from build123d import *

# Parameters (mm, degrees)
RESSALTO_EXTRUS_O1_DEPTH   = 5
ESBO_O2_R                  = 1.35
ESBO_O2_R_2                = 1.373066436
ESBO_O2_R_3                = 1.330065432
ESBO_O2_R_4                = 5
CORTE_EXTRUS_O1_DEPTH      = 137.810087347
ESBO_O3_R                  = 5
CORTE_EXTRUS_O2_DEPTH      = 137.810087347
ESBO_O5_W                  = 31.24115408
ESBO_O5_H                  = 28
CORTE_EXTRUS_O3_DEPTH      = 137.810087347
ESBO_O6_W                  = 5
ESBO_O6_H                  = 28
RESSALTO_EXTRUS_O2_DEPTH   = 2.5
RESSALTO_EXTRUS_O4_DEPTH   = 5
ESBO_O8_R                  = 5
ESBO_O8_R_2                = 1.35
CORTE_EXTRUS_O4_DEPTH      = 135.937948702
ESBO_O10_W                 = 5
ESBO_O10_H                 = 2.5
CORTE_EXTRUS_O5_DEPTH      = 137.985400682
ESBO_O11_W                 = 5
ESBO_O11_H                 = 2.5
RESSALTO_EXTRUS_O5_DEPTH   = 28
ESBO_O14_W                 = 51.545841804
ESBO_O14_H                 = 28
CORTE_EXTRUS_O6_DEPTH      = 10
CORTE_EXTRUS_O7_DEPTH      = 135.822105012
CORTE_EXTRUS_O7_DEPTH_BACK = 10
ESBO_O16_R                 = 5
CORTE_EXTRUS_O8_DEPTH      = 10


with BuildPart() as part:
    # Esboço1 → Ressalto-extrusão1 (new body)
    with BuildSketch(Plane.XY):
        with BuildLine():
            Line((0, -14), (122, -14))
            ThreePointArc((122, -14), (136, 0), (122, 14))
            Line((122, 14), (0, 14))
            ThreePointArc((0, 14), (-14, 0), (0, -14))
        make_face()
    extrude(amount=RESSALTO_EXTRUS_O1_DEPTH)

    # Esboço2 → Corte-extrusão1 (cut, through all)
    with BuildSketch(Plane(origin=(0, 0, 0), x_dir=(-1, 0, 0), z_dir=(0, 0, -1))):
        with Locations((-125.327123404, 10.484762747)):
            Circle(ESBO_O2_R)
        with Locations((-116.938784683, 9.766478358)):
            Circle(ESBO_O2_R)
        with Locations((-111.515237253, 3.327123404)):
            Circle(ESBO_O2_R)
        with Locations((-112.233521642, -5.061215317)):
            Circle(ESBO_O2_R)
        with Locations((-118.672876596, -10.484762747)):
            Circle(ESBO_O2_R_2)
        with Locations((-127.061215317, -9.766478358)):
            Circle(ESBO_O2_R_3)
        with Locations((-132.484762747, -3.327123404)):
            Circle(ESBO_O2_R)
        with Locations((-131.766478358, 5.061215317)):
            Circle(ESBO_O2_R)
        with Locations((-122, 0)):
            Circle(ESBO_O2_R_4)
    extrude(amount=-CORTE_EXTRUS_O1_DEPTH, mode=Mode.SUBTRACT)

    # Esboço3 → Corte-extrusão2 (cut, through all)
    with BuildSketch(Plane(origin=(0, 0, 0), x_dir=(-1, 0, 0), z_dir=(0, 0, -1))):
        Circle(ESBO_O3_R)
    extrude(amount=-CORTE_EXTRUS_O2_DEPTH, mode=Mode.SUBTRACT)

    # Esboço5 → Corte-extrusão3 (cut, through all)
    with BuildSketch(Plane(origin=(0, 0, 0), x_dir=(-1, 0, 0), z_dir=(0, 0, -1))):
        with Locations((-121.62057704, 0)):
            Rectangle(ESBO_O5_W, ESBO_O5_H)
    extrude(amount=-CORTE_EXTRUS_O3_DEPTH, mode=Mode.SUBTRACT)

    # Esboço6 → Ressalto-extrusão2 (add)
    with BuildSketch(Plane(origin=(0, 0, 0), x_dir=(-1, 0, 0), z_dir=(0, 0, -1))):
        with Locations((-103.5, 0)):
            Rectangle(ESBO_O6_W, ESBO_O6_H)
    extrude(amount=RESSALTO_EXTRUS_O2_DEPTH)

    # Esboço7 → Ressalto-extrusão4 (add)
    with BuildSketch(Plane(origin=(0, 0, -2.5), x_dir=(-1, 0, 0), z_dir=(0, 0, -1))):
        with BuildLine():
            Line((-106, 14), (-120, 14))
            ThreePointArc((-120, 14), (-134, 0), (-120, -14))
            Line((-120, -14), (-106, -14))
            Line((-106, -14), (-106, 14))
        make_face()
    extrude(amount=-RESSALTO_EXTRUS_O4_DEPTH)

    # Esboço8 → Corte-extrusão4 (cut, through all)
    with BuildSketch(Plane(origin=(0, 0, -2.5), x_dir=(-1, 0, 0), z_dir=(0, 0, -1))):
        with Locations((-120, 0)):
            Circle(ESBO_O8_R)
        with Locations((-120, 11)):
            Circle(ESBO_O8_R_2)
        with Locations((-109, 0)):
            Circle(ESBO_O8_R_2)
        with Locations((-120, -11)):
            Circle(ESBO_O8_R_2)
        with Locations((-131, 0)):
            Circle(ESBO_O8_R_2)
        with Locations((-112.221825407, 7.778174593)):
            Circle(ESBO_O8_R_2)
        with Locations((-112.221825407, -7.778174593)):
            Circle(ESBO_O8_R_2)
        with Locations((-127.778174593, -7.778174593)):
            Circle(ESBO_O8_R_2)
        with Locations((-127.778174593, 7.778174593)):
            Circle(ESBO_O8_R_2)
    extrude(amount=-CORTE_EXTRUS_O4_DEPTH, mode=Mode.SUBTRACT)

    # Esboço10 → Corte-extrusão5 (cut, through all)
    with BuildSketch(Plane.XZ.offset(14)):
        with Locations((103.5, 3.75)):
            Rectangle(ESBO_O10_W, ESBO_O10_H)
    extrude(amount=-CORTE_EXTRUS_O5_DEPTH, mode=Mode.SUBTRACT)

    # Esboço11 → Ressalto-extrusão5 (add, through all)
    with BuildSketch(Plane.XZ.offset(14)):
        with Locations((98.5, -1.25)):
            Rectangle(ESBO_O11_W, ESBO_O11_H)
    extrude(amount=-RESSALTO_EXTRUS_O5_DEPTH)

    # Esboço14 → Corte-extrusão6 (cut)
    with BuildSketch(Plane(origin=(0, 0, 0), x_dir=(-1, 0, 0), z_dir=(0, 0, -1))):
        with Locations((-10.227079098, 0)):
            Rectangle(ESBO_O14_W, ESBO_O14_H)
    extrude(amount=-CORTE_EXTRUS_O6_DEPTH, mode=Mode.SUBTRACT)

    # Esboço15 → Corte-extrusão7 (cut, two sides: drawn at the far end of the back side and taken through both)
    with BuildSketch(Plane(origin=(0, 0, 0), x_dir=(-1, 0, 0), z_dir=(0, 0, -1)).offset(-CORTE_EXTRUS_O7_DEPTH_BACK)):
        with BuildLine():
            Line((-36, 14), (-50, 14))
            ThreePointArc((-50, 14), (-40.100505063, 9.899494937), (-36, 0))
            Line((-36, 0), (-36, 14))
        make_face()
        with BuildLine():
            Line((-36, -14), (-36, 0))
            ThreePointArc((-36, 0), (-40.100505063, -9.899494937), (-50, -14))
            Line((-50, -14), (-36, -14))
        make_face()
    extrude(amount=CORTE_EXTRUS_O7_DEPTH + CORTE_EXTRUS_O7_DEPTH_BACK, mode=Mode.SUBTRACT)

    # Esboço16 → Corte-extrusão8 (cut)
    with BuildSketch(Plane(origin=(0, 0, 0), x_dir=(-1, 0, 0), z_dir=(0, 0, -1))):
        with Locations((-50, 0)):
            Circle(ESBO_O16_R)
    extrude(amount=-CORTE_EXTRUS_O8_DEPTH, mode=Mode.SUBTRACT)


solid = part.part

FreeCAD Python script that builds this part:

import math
import FreeCAD as App
import Part
import Sketcher
Q = App.Units.Quantity

doc = App.newDocument("Part")
body = doc.addObject("PartDesign::Body", "Body")

# Sketch on XY plane
sketch1 = body.newObject("Sketcher::SketchObject", "Sketch")
sketch1.AttachmentSupport = (doc.getObject("XY_Plane"), [""])
sketch1.MapMode = "FlatFace"
sketch1.addGeometry([
    Part.LineSegment(App.Vector(0, -14, 0), App.Vector(122, -14, 0)),
    Part.ArcOfCircle(Part.Circle(App.Vector(122, 0, 0), App.Vector(0, 0, 1), 14), math.radians(-90), math.radians(90)),
    Part.LineSegment(App.Vector(122, 14, 0), App.Vector(0, 14, 0)),
    Part.ArcOfCircle(Part.Circle(App.Vector(0, 0, 0), App.Vector(0, 0, 1), 14), math.radians(90), math.radians(270)),
], False)
sketch1.addConstraint([
    Sketcher.Constraint("Tangent", 0, 2, 1, 1),
    Sketcher.Constraint("Tangent", 1, 2, 2, 1),
    Sketcher.Constraint("Tangent", 2, 2, 3, 1),
    Sketcher.Constraint("Tangent", 3, 2, 0, 1),
    Sketcher.Constraint("Horizontal", 0),
    Sketcher.Constraint("Horizontal", 2),
    Sketcher.Constraint("Coincident", 3, 3, -1, 1),
    Sketcher.Constraint("Radius", 1, Q("14 mm")),
    Sketcher.Constraint("DistanceX", 0, 1, 0, 2, Q("122 mm")),
])
pad1 = body.newObject("PartDesign::Pad", "Pad")
pad1.Profile = sketch1
pad1.Length = 5

# Sketch on XY plane
sketch2 = body.newObject("Sketcher::SketchObject", "Sketch001")
sketch2.AttachmentSupport = (doc.getObject("XY_Plane"), [""])
sketch2.MapMode = "FlatFace"
sketch2.addGeometry([
    Part.Circle(App.Vector(125.3, 10.5, 0), App.Vector(0, 0, 1), 1.4),  # 0
    Part.Circle(App.Vector(116.9, 9.8, 0), App.Vector(0, 0, 1), 1.4),  # 1
    Part.Circle(App.Vector(111.5, 3.3, 0), App.Vector(0, 0, 1), 1.4),  # 2
    Part.Circle(App.Vector(112.2, -5.1, 0), App.Vector(0, 0, 1), 1.4),  # 3
    Part.Circle(App.Vector(118.7, -10.5, 0), App.Vector(0, 0, 1), 1.4),  # 4
    Part.Circle(App.Vector(127.1, -9.8, 0), App.Vector(0, 0, 1), 1.3),  # 5
    Part.Circle(App.Vector(132.5, -3.3, 0), App.Vector(0, 0, 1), 1.4),  # 6
    Part.Circle(App.Vector(131.8, 5.1, 0), App.Vector(0, 0, 1), 1.4),  # 7
    Part.Circle(App.Vector(122, 0, 0), App.Vector(0, 0, 1), 5),  # 8
], False)
sketch2.addConstraint([
    Sketcher.Constraint("Equal", 0, 1),
    Sketcher.Constraint("Equal", 1, 2),
    Sketcher.Constraint("Equal", 2, 3),
    Sketcher.Constraint("Equal", 3, 6),
    Sketcher.Constraint("Equal", 6, 7),
    Sketcher.Constraint("PointOnObject", 8, 3, -1),
    Sketcher.Constraint("Diameter", 8, Q("10 mm")),
    Sketcher.Constraint("Diameter", 0, Q("2.7 mm")),
    Sketcher.Constraint("DistanceX", -1, 1, 8, 3, Q("122 mm")),
    Sketcher.Constraint("Diameter", 5, Q("2.660131 mm")),
    Sketcher.Constraint("Diameter", 4, Q("2.746133 mm")),
    Sketcher.Constraint("DistanceX", 3, 3, 0, 3, Q("13.093602 mm")),
    Sketcher.Constraint("DistanceY", 5, 3, 2, 3, Q("13.093602 mm")),
    Sketcher.Constraint("DistanceY", 6, 3, 1, 3, Q("13.093602 mm")),
    Sketcher.Constraint("DistanceY", -1, 1, 1, 3, Q("9.766478 mm")),
    Sketcher.Constraint("DistanceX", -1, 1, 3, 3, Q("112.233522 mm")),
    Sketcher.Constraint("DistanceY", 5, 3, -1, 1, Q("9.766478 mm")),
    Sketcher.Constraint("DistanceX", -1, 1, 7, 3, Q("131.766478 mm")),
    Sketcher.Constraint("DistanceX", 1, 3, 0, 3, Q("8.388339 mm")),
    Sketcher.Constraint("DistanceY", 2, 3, 0, 3, Q("7.157639 mm")),
    Sketcher.Constraint("DistanceY", 3, 3, 2, 3, Q("8.388339 mm")),
    Sketcher.Constraint("DistanceX", 2, 3, 4, 3, Q("7.157639 mm")),
    Sketcher.Constraint("DistanceX", 1, 3, 4, 3, Q("1.734092 mm")),
    Sketcher.Constraint("DistanceY", 4, 3, 1, 3, Q("20.251241 mm")),
    Sketcher.Constraint("DistanceX", 4, 3, 5, 3, Q("8.388339 mm")),
    Sketcher.Constraint("DistanceX", 0, 3, 6, 3, Q("7.157639 mm")),
    Sketcher.Constraint("DistanceY", 6, 3, 7, 3, Q("8.388339 mm")),
])
pocket1 = body.newObject("PartDesign::Pocket", "Pocket")
pocket1.Profile = sketch2
pocket1.Type = "ThroughAll"
pocket1.Reversed = True

# Sketch on XY plane
sketch3 = body.newObject("Sketcher::SketchObject", "Sketch002")
sketch3.AttachmentSupport = (doc.getObject("XY_Plane"), [""])
sketch3.MapMode = "FlatFace"
sketch3.addGeometry(Part.Circle(App.Vector(0, 0, 0), App.Vector(0, 0, 1), 5), False)
sketch3.addConstraint([
    Sketcher.Constraint("Coincident", 0, 3, -1, 1),
    Sketcher.Constraint("Diameter", 0, Q("10 mm")),
])
pocket2 = body.newObject("PartDesign::Pocket", "Pocket001")
pocket2.Profile = sketch3
pocket2.Type = "ThroughAll"
pocket2.Reversed = True

# Sketch on XY plane
sketch4 = body.newObject("Sketcher::SketchObject", "Sketch003")
sketch4.AttachmentSupport = (doc.getObject("XY_Plane"), [""])
sketch4.MapMode = "FlatFace"
sketch4.addGeometry([
    Part.LineSegment(App.Vector(137, 14, 0), App.Vector(137, -14, 0)),
    Part.LineSegment(App.Vector(137, -14, 0), App.Vector(106, -14, 0)),
    Part.LineSegment(App.Vector(106, -14, 0), App.Vector(106, 14, 0)),
    Part.LineSegment(App.Vector(106, 14, 0), App.Vector(137, 14, 0)),
], False)
sketch4.addConstraint([
    Sketcher.Constraint("Coincident", 0, 2, 1, 1),
    Sketcher.Constraint("Coincident", 1, 2, 2, 1),
    Sketcher.Constraint("Coincident", 2, 2, 3, 1),
    Sketcher.Constraint("Coincident", 3, 2, 0, 1),
    Sketcher.Constraint("Vertical", 0),
    Sketcher.Constraint("Horizontal", 1),
    Sketcher.Constraint("Vertical", 2),
    Sketcher.Constraint("Horizontal", 3),
    Sketcher.Constraint("DistanceY", 0, 2, 0, 1, Q("28 mm")),
    Sketcher.Constraint("DistanceY", 0, 2, -1, 1, Q("14 mm")),
    Sketcher.Constraint("DistanceX", -1, 1, 1, 2, Q("106 mm")),
    Sketcher.Constraint("DistanceX", 1, 2, 1, 1, Q("31.241154 mm")),
])
pocket3 = body.newObject("PartDesign::Pocket", "Pocket002")
pocket3.Profile = sketch4
pocket3.Type = "ThroughAll"
pocket3.Reversed = True

# Sketch on XY plane
sketch5 = body.newObject("Sketcher::SketchObject", "Sketch004")
sketch5.AttachmentSupport = (doc.getObject("XY_Plane"), [""])
sketch5.MapMode = "FlatFace"
sketch5.addGeometry([
    Part.LineSegment(App.Vector(106, 14, 0), App.Vector(106, -14, 0)),
    Part.LineSegment(App.Vector(106, -14, 0), App.Vector(101, -14, 0)),
    Part.LineSegment(App.Vector(101, -14, 0), App.Vector(101, 14, 0)),
    Part.LineSegment(App.Vector(101, 14, 0), App.Vector(106, 14, 0)),
], False)
sketch5.addConstraint([
    Sketcher.Constraint("Coincident", 0, 2, 1, 1),
    Sketcher.Constraint("Coincident", 1, 2, 2, 1),
    Sketcher.Constraint("Coincident", 2, 2, 3, 1),
    Sketcher.Constraint("Coincident", 3, 2, 0, 1),
    Sketcher.Constraint("Vertical", 0),
    Sketcher.Constraint("Horizontal", 1),
    Sketcher.Constraint("Vertical", 2),
    Sketcher.Constraint("Horizontal", 3),
    Sketcher.Constraint("DistanceX", 1, 2, 1, 1, Q("5 mm")),
    Sketcher.Constraint("DistanceY", 0, 2, 0, 1, Q("28 mm")),
    Sketcher.Constraint("DistanceX", -1, 1, 0, 2, Q("106 mm")),
    Sketcher.Constraint("DistanceY", 0, 2, -1, 1, Q("14 mm")),
])
pad2 = body.newObject("PartDesign::Pad", "Pad001")
pad2.Profile = sketch5
pad2.Length = 2.5
pad2.Reversed = True

# Sketch on XY plane
sketch6 = body.newObject("Sketcher::SketchObject", "Sketch005")
sketch6.AttachmentSupport = (doc.getObject("XY_Plane"), [""])
sketch6.MapMode = "FlatFace"
sketch6.AttachmentOffset = App.Placement(App.Vector(0, 0, -2.5), App.Rotation())
sketch6.addGeometry([
    Part.LineSegment(App.Vector(106, 14, 0), App.Vector(120, 14, 0)),
    Part.ArcOfCircle(Part.Circle(App.Vector(120, 0, 0), App.Vector(0, 0, 1), 14), math.radians(-90), math.radians(90)),
    Part.LineSegment(App.Vector(120, -14, 0), App.Vector(106, -14, 0)),
    Part.LineSegment(App.Vector(106, -14, 0), App.Vector(106, 14, 0)),
], False)
sketch6.addConstraint([
    Sketcher.Constraint("Tangent", 0, 2, 1, 2),
    Sketcher.Constraint("Tangent", 1, 1, 2, 1),
    Sketcher.Constraint("Coincident", 2, 2, 3, 1),
    Sketcher.Constraint("Coincident", 3, 2, 0, 1),
    Sketcher.Constraint("Horizontal", 0),
    Sketcher.Constraint("Horizontal", 2),
    Sketcher.Constraint("Vertical", 3),
    Sketcher.Constraint("PointOnObject", 1, 3, -1),
    Sketcher.Constraint("Radius", 1, Q("14 mm")),
    Sketcher.Constraint("DistanceX", 0, 1, 0, 2, Q("14 mm")),
    Sketcher.Constraint("DistanceX", -1, 1, 1, 3, Q("120 mm")),
])
pad3 = body.newObject("PartDesign::Pad", "Pad002")
pad3.Profile = sketch6
pad3.Length = 5

# Sketch on XY plane
sketch7 = body.newObject("Sketcher::SketchObject", "Sketch006")
sketch7.AttachmentSupport = (doc.getObject("XY_Plane"), [""])
sketch7.MapMode = "FlatFace"
sketch7.AttachmentOffset = App.Placement(App.Vector(0, 0, -2.5), App.Rotation())
sketch7.addGeometry([
    Part.Circle(App.Vector(120, 0, 0), App.Vector(0, 0, 1), 5),  # 0
    Part.Circle(App.Vector(120, 11, 0), App.Vector(0, 0, 1), 1.4),  # 1
    Part.Circle(App.Vector(109, 0, 0), App.Vector(0, 0, 1), 1.4),  # 2
    Part.Circle(App.Vector(120, -11, 0), App.Vector(0, 0, 1), 1.4),  # 3
    Part.Circle(App.Vector(131, 0, 0), App.Vector(0, 0, 1), 1.4),  # 4
    Part.Circle(App.Vector(112.2, 7.8, 0), App.Vector(0, 0, 1), 1.4),  # 5
    Part.Circle(App.Vector(112.2, -7.8, 0), App.Vector(0, 0, 1), 1.4),  # 6
    Part.Circle(App.Vector(127.8, -7.8, 0), App.Vector(0, 0, 1), 1.4),  # 7
    Part.Circle(App.Vector(127.8, 7.8, 0), App.Vector(0, 0, 1), 1.4),  # 8
], False)
sketch7.addConstraint([
    Sketcher.Constraint("Equal", 1, 2),
    Sketcher.Constraint("Equal", 2, 3),
    Sketcher.Constraint("Equal", 3, 4),
    Sketcher.Constraint("Equal", 4, 5),
    Sketcher.Constraint("Equal", 5, 6),
    Sketcher.Constraint("Equal", 6, 7),
    Sketcher.Constraint("Equal", 7, 8),
    Sketcher.Constraint("Symmetric", 1, 3, 3, 3, -1),
    Sketcher.Constraint("Symmetric", 5, 3, 6, 3, -1),
    Sketcher.Constraint("Symmetric", 7, 3, 8, 3, -1),
    Sketcher.Constraint("PointOnObject", 0, 3, -1),
    Sketcher.Constraint("PointOnObject", 2, 3, -1),
    Sketcher.Constraint("PointOnObject", 4, 3, -1),
    Sketcher.Constraint("Horizontal", 6, 3, 7, 3),
    Sketcher.Constraint("Vertical", 0, 3, 1, 3),
    Sketcher.Constraint("Diameter", 0, Q("10 mm")),
    Sketcher.Constraint("Diameter", 1, Q("2.7 mm")),
    Sketcher.Constraint("DistanceX", -1, 1, 0, 3, Q("120 mm")),
    Sketcher.Constraint("DistanceY", -1, 1, 1, 3, Q("11 mm")),
    Sketcher.Constraint("DistanceX", -1, 1, 2, 3, Q("109 mm")),
    Sketcher.Constraint("DistanceX", -1, 1, 4, 3, Q("131 mm")),
    Sketcher.Constraint("DistanceY", 6, 3, 5, 3, Q("15.556349 mm")),
    Sketcher.Constraint("DistanceX", 6, 3, 7, 3, Q("15.556349 mm")),
    Sketcher.Constraint("DistanceX", -1, 1, 5, 3, Q("112.221825 mm")),
])
pocket4 = body.newObject("PartDesign::Pocket", "Pocket003")
pocket4.Profile = sketch7
pocket4.Type = "ThroughAll"
pocket4.Reversed = True

# Sketch on XZ plane
sketch8 = body.newObject("Sketcher::SketchObject", "Sketch007")
sketch8.AttachmentSupport = (doc.getObject("XZ_Plane"), [""])
sketch8.MapMode = "FlatFace"
sketch8.AttachmentOffset = App.Placement(App.Vector(0, 0, 14), App.Rotation())
sketch8.addGeometry([
    Part.LineSegment(App.Vector(101, 5, 0), App.Vector(101, 2.5, 0)),
    Part.LineSegment(App.Vector(101, 2.5, 0), App.Vector(106, 2.5, 0)),
    Part.LineSegment(App.Vector(106, 2.5, 0), App.Vector(106, 5, 0)),
    Part.LineSegment(App.Vector(106, 5, 0), App.Vector(101, 5, 0)),
], False)
sketch8.addConstraint([
    Sketcher.Constraint("Coincident", 0, 2, 1, 1),
    Sketcher.Constraint("Coincident", 1, 2, 2, 1),
    Sketcher.Constraint("Coincident", 2, 2, 3, 1),
    Sketcher.Constraint("Coincident", 3, 2, 0, 1),
    Sketcher.Constraint("Vertical", 0),
    Sketcher.Constraint("Horizontal", 1),
    Sketcher.Constraint("Vertical", 2),
    Sketcher.Constraint("Horizontal", 3),
    Sketcher.Constraint("DistanceX", 1, 1, 1, 2, Q("5 mm")),
    Sketcher.Constraint("DistanceY", 0, 2, 0, 1, Q("2.5 mm")),
    Sketcher.Constraint("DistanceX", -1, 1, 0, 2, Q("101 mm")),
    Sketcher.Constraint("DistanceY", -1, 1, 2, 2, Q("5 mm")),
])
pocket5 = body.newObject("PartDesign::Pocket", "Pocket004")
pocket5.Profile = sketch8
pocket5.Type = "ThroughAll"

# Sketch on XZ plane
sketch9 = body.newObject("Sketcher::SketchObject", "Sketch008")
sketch9.AttachmentSupport = (doc.getObject("XZ_Plane"), [""])
sketch9.MapMode = "FlatFace"
sketch9.AttachmentOffset = App.Placement(App.Vector(0, 0, 14), App.Rotation())
sketch9.addGeometry([
    Part.LineSegment(App.Vector(96, 0, 0), App.Vector(96, -2.5, 0)),
    Part.LineSegment(App.Vector(96, -2.5, 0), App.Vector(101, -2.5, 0)),
    Part.LineSegment(App.Vector(101, -2.5, 0), App.Vector(101, 0, 0)),
    Part.LineSegment(App.Vector(101, 0, 0), App.Vector(96, 0, 0)),
], False)
sketch9.addConstraint([
    Sketcher.Constraint("Coincident", 0, 2, 1, 1),
    Sketcher.Constraint("Coincident", 1, 2, 2, 1),
    Sketcher.Constraint("Coincident", 2, 2, 3, 1),
    Sketcher.Constraint("Coincident", 3, 2, 0, 1),
    Sketcher.Constraint("Vertical", 0),
    Sketcher.Constraint("Horizontal", 1),
    Sketcher.Constraint("Vertical", 2),
    Sketcher.Constraint("Horizontal", 3),
    Sketcher.Constraint("PointOnObject", 2, 2, -1),
    Sketcher.Constraint("DistanceX", 1, 1, 1, 2, Q("5 mm")),
    Sketcher.Constraint("DistanceY", 0, 2, 0, 1, Q("2.5 mm")),
    Sketcher.Constraint("DistanceX", -1, 1, 0, 2, Q("96 mm")),
])
pad4 = body.newObject("PartDesign::Pad", "Pad003")
pad4.Profile = sketch9
pad4.Length = 28
pad4.Reversed = True

# Sketch on XY plane
sketch10 = body.newObject("Sketcher::SketchObject", "Sketch009")
sketch10.AttachmentSupport = (doc.getObject("XY_Plane"), [""])
sketch10.MapMode = "FlatFace"
sketch10.addGeometry([
    Part.LineSegment(App.Vector(36, 14, 0), App.Vector(36, -14, 0)),
    Part.LineSegment(App.Vector(36, -14, 0), App.Vector(-16, -14, 0)),
    Part.LineSegment(App.Vector(-16, -14, 0), App.Vector(-16, 14, 0)),
    Part.LineSegment(App.Vector(-16, 14, 0), App.Vector(36, 14, 0)),
], False)
sketch10.addConstraint([
    Sketcher.Constraint("Coincident", 0, 2, 1, 1),
    Sketcher.Constraint("Coincident", 1, 2, 2, 1),
    Sketcher.Constraint("Coincident", 2, 2, 3, 1),
    Sketcher.Constraint("Coincident", 3, 2, 0, 1),
    Sketcher.Constraint("Vertical", 0),
    Sketcher.Constraint("Horizontal", 1),
    Sketcher.Constraint("Vertical", 2),
    Sketcher.Constraint("Horizontal", 3),
    Sketcher.Constraint("DistanceY", 0, 2, 0, 1, Q("28 mm")),
    Sketcher.Constraint("DistanceX", -1, 1, 0, 2, Q("36 mm")),
    Sketcher.Constraint("DistanceY", 0, 2, -1, 1, Q("14 mm")),
    Sketcher.Constraint("DistanceX", 1, 2, 1, 1, Q("51.545842 mm")),
])
pocket6 = body.newObject("PartDesign::Pocket", "Pocket005")
pocket6.Profile = sketch10
pocket6.Length = 10
pocket6.Reversed = True

# Sketch on XY plane
sketch11 = body.newObject("Sketcher::SketchObject", "Sketch010")
sketch11.AttachmentSupport = (doc.getObject("XY_Plane"), [""])
sketch11.MapMode = "FlatFace"
sketch11.addGeometry([
    Part.LineSegment(App.Vector(36, 14, 0), App.Vector(50, 14, 0)),  # 0
    Part.ArcOfCircle(Part.Circle(App.Vector(50, 0, 0), App.Vector(0, 0, 1), 14), math.radians(90), math.radians(180)),  # 1
    Part.LineSegment(App.Vector(36, 0, 0), App.Vector(36, 14, 0)),  # 2
    Part.LineSegment(App.Vector(36, -14, 0), App.Vector(36, 0, 0)),  # 3
    Part.ArcOfCircle(Part.Circle(App.Vector(50, 0, 0), App.Vector(0, 0, 1), 14), math.radians(180), math.radians(270)),  # 4
    Part.LineSegment(App.Vector(50, -14, 0), App.Vector(36, -14, 0)),  # 5
], False)
sketch11.addConstraint([
    Sketcher.Constraint("Tangent", 0, 2, 1, 1),
    Sketcher.Constraint("Tangent", 1, 2, 2, 1),
    Sketcher.Constraint("Coincident", 2, 2, 0, 1),
    Sketcher.Constraint("Tangent", 3, 2, 4, 1),
    Sketcher.Constraint("Tangent", 4, 2, 5, 1),
    Sketcher.Constraint("Coincident", 5, 2, 3, 1),
    Sketcher.Constraint("Horizontal", 0),
    Sketcher.Constraint("Vertical", 2),
    Sketcher.Constraint("Vertical", 3),
    Sketcher.Constraint("Horizontal", 5),
    Sketcher.Constraint("Coincident", 4, 3, 1, 3),
    Sketcher.Constraint("Equal", 1, 4),
    Sketcher.Constraint("PointOnObject", 1, 3, -1),
    Sketcher.Constraint("Radius", 1, Q("14 mm")),
    Sketcher.Constraint("DistanceX", -1, 1, 1, 3, Q("50 mm")),
])
pocket7 = body.newObject("PartDesign::Pocket", "Pocket006")
pocket7.Profile = sketch11
pocket7.Type = "ThroughAll"
pocket7.Midplane = True

# Sketch on XY plane
sketch12 = body.newObject("Sketcher::SketchObject", "Sketch011")
sketch12.AttachmentSupport = (doc.getObject("XY_Plane"), [""])
sketch12.MapMode = "FlatFace"
sketch12.addGeometry(Part.Circle(App.Vector(50, 0, 0), App.Vector(0, 0, 1), 5), False)
sketch12.addConstraint([
    Sketcher.Constraint("PointOnObject", 0, 3, -1),
    Sketcher.Constraint("Diameter", 0, Q("10 mm")),
    Sketcher.Constraint("DistanceX", -1, 1, 0, 3, Q("50 mm")),
])
pocket8 = body.newObject("PartDesign::Pocket", "Pocket007")
pocket8.Profile = sketch12
pocket8.Length = 10
pocket8.Reversed = True

doc.recompute()
